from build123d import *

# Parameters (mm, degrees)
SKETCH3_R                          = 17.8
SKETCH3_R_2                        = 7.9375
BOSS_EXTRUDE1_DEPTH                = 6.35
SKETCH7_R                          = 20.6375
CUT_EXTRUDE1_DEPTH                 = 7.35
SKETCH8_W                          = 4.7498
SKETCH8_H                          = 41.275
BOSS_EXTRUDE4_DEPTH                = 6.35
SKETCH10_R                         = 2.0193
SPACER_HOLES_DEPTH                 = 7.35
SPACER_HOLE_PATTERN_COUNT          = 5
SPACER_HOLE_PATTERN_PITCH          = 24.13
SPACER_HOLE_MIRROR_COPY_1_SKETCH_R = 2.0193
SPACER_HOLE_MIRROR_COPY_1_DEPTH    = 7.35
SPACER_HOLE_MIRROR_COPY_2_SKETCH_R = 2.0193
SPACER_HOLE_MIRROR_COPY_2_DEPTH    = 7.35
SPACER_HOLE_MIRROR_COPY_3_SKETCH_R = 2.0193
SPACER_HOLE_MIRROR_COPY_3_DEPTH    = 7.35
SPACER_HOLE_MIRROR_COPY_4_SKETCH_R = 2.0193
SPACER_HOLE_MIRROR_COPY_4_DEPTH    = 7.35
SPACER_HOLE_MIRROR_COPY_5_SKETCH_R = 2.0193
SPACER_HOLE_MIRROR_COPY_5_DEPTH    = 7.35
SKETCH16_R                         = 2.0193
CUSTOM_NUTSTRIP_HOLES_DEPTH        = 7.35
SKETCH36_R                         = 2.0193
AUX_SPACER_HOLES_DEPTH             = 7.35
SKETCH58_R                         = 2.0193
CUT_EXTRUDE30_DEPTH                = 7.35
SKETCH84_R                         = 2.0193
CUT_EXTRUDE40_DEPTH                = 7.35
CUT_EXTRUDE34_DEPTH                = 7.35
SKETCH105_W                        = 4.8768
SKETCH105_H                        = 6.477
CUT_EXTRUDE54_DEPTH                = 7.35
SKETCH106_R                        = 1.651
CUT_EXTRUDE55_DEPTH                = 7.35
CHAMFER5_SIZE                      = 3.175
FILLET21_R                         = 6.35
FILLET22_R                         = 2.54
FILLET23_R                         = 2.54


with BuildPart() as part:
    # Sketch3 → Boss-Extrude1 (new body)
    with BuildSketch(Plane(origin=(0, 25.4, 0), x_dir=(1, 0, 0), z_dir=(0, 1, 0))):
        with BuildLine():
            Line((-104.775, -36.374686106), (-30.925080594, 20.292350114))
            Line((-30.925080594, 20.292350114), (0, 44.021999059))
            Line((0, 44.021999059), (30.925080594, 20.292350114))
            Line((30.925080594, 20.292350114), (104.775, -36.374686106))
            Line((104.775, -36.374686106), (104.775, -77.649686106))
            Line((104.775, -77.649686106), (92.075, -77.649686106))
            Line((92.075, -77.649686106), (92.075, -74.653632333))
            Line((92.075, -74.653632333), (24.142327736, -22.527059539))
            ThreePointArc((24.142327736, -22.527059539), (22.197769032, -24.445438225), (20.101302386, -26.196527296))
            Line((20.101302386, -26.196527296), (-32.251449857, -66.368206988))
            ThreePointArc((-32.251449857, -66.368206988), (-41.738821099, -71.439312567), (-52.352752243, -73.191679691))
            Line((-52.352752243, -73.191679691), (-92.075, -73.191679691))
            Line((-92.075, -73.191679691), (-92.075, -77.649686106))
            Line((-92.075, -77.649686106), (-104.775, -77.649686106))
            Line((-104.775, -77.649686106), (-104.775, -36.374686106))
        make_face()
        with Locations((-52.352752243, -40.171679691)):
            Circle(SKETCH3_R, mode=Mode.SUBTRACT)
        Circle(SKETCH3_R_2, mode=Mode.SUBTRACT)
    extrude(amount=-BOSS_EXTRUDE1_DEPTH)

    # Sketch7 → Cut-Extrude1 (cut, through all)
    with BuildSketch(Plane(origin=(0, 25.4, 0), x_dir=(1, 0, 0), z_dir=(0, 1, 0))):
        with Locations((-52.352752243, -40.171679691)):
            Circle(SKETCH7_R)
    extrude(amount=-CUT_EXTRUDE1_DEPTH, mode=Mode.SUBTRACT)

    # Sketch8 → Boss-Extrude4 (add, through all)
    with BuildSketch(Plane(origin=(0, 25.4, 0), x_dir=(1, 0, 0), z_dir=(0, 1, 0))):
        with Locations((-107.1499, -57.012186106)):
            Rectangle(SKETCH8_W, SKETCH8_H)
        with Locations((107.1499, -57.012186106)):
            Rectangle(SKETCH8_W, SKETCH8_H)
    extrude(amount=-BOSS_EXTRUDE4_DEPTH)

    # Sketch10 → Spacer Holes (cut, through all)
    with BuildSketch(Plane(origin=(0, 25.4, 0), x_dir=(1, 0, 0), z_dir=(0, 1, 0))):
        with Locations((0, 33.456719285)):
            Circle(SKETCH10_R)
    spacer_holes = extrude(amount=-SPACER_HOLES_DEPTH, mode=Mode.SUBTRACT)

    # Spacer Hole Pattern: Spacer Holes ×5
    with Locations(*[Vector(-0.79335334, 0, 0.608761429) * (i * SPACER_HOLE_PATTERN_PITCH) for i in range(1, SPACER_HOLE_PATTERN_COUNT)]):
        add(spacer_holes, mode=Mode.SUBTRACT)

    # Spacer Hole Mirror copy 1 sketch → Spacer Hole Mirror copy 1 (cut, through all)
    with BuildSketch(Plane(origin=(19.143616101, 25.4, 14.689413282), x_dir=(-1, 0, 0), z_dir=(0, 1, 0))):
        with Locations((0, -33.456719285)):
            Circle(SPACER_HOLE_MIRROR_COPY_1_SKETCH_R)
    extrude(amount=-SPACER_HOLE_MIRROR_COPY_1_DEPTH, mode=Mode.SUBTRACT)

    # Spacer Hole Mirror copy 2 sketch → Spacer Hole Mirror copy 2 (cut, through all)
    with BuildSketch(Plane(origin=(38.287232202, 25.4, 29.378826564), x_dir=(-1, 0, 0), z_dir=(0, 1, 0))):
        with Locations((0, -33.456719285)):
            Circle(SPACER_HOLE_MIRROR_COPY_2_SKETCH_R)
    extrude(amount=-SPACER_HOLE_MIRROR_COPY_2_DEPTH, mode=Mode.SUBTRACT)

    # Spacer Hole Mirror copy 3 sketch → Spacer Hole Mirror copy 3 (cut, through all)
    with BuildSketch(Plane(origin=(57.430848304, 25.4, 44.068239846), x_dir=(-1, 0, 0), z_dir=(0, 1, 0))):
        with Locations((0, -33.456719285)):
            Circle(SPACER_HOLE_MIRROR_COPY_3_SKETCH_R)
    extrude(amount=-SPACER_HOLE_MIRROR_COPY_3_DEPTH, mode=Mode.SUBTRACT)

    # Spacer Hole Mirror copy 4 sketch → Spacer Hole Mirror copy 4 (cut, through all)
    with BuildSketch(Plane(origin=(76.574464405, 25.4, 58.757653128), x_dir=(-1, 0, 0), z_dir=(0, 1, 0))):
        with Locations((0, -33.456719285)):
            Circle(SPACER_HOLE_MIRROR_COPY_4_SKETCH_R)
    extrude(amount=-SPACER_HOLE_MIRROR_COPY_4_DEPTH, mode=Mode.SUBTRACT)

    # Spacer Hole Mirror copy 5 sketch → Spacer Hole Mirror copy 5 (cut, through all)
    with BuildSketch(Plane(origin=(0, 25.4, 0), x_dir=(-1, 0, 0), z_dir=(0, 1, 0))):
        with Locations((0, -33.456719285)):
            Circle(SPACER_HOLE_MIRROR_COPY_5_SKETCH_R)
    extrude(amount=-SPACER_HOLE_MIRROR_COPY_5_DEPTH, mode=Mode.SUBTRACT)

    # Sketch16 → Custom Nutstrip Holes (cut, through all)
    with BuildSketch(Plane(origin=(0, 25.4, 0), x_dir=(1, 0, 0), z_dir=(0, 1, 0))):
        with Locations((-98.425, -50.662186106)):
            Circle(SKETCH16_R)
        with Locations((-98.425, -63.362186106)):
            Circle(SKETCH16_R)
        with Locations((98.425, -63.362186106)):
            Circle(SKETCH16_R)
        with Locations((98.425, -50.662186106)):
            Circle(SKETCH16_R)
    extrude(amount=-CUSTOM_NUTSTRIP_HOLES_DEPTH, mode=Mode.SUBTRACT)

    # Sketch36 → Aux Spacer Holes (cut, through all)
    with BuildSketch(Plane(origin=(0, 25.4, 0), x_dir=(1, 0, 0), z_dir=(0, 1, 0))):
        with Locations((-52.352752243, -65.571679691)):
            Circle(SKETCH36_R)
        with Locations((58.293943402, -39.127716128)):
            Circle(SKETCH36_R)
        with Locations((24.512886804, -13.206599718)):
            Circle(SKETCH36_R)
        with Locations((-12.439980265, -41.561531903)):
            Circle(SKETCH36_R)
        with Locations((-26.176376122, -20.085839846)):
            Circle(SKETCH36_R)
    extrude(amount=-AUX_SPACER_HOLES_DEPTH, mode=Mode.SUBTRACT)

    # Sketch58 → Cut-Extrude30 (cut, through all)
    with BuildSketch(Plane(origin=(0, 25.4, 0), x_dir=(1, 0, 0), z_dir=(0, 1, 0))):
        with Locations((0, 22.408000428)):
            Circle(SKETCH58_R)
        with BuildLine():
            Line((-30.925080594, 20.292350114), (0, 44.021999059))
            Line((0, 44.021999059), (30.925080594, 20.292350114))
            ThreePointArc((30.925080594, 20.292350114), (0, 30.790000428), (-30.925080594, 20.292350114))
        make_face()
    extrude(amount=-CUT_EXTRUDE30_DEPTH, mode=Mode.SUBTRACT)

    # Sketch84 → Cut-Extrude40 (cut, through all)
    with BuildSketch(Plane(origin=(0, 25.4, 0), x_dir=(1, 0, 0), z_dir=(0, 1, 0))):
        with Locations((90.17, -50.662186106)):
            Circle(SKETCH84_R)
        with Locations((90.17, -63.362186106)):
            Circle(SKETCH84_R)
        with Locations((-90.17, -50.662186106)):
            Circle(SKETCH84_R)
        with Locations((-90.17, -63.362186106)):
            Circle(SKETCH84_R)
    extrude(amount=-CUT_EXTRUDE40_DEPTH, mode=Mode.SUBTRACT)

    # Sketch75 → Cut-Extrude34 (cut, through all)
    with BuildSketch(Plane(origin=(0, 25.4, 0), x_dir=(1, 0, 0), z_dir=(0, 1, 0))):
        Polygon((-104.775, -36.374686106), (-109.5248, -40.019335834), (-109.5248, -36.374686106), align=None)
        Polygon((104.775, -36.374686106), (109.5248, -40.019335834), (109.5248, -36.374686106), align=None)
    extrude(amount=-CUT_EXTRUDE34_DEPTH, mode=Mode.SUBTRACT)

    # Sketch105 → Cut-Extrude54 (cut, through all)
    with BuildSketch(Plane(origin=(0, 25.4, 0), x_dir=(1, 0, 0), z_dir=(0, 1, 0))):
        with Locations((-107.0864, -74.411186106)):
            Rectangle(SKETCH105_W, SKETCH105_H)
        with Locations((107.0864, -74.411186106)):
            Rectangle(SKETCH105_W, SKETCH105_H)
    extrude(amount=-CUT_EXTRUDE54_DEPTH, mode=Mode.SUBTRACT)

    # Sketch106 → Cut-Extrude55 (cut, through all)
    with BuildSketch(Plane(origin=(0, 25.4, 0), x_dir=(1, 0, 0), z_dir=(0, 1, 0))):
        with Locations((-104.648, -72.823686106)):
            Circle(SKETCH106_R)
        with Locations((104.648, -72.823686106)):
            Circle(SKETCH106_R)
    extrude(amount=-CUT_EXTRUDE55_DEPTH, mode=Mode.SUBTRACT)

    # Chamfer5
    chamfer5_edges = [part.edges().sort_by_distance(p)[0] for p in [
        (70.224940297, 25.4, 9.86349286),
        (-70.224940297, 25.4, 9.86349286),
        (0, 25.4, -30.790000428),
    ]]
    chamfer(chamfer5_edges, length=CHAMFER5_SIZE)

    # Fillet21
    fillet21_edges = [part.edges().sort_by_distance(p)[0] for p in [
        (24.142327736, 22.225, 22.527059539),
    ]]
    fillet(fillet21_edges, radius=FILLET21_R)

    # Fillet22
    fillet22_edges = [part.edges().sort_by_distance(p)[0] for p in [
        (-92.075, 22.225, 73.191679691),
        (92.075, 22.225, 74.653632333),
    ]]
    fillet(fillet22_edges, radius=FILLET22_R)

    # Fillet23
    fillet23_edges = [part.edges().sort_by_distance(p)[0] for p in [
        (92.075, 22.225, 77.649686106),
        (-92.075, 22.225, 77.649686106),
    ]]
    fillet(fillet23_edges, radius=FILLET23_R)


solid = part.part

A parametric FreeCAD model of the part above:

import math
import FreeCAD as App
import Part
import Sketcher

V = App.Vector
Q = App.Units.Quantity


def edges_at(feature, points):
    """Names of the edges that pass closest to the given points."""
    edges = feature.Shape.Edges
    near = lambda p: min(range(len(edges)), key=lambda i: edges[i].distToShape(Part.Vertex(*p))[0])
    return sorted({f"Edge{near(p) + 1}" for p in points})

doc = App.newDocument("Part")
body = doc.addObject("PartDesign::Body", "Body")

sketch1 = body.newObject("Sketcher::SketchObject", "Sketch")
sketch1.AttachmentSupport = (doc.getObject("XZ_Plane"), [""])
sketch1.MapMode = "FlatFace"
sketch1.AttachmentOffset = App.Placement(V(0, 0, -1 * 25.4), App.Rotation())
sketch1.addGeometry([
    Part.LineSegment(V(-30.925081, -20.29235, 0), V(-104.775, 36.374686, 0)),
    Part.LineSegment(V(-104.775, 36.374686, 0), V(-104.775, 77.649686, 0)),
    Part.LineSegment(V(-104.775, 77.649686, 0), V(-92.075, 77.649686, 0)),
    Part.LineSegment(V(-92.075, 77.649686, 0), V(-92.075, 73.19168, 0)),
    Part.LineSegment(V(-92.075, 73.19168, 0), V(-52.352752, 73.19168, 0)),
    Part.ArcOfCircle(Part.Circle(V(-52.352752, 40.17168, 0), V(0, 0, 1), 33.02), math.radians(52.5), math.radians(90)),
    Part.LineSegment(V(-32.25145, 66.368207, 0), V(20.101302, 26.196527, 0)),
    Part.ArcOfCircle(Part.Circle(V(0, 0, 0), V(0, 0, 1), 33.02), math.radians(43.017734), math.radians(52.5)),
    Part.LineSegment(V(24.142328, 22.52706, 0), V(92.075, 74.653632, 0)),
    Part.LineSegment(V(92.075, 74.653632, 0), V(92.075, 77.649686, 0)),
    Part.LineSegment(V(92.075, 77.649686, 0), V(104.775, 77.649686, 0)),
    Part.LineSegment(V(104.775, 77.649686, 0), V(104.775, 36.374686, 0)),
    Part.LineSegment(V(104.775, 36.374686, 0), V(30.925081, -20.29235, 0)),
    Part.LineSegment(V(30.925081, -20.29235, 0), V(0, -44.021999, 0)),
    Part.LineSegment(V(0, -44.021999, 0), V(-30.925081, -20.29235, 0)),
    Part.Circle(V(-52.352752, 40.17168, 0), V(0, 0, 1), 17.8),
    Part.Circle(V(0, 0, 0), V(0, 0, 1), 7.9375),
], False)
sketch1.addConstraint([
    Sketcher.Constraint("Coincident", 0, 2, 1, 1),
    Sketcher.Constraint("Coincident", 1, 2, 2, 1),
    Sketcher.Constraint("Coincident", 2, 2, 3, 1),
    Sketcher.Constraint("Coincident", 3, 2, 4, 1),
    Sketcher.Constraint("Tangent", 4, 2, 5, 2),
    Sketcher.Constraint("Tangent", 5, 1, 6, 1),
    Sketcher.Constraint("Tangent", 6, 2, 7, 2),
    Sketcher.Constraint("Coincident", 7, 1, 8, 1),
    Sketcher.Constraint("Coincident", 8, 2, 9, 1),
    Sketcher.Constraint("Coincident", 9, 2, 10, 1),
    Sketcher.Constraint("Coincident", 10, 2, 11, 1),
    Sketcher.Constraint("Coincident", 11, 2, 12, 1),
    Sketcher.Constraint("Coincident", 12, 2, 13, 1),
    Sketcher.Constraint("Coincident", 13, 2, 14, 1),
    Sketcher.Constraint("Coincident", 14, 2, 0, 1),
    Sketcher.Constraint("Vertical", 1),
    Sketcher.Constraint("Horizontal", 2),
    Sketcher.Constraint("Vertical", 3),
    Sketcher.Constraint("Horizontal", 4),
    Sketcher.Constraint("Vertical", 9),
    Sketcher.Constraint("Horizontal", 10),
    Sketcher.Constraint("Vertical", 11),
    Sketcher.Constraint("Coincident", 7, 3, -1, 1),
    Sketcher.Constraint("Coincident", 16, 3, -1, 1),
    Sketcher.Constraint("Coincident", 15, 3, 5, 3),
    Sketcher.Constraint("Equal", 5, 7),
    Sketcher.Constraint("Symmetric", 2, 2, 9, 2, -2),
    Sketcher.Constraint("Symmetric", 0, 2, 11, 2, -2),
    Sketcher.Constraint("Symmetric", 12, 2, 14, 2, -2),
    Sketcher.Constraint("PointOnObject", 13, 2, -2),
    Sketcher.Constraint("Parallel", 0, 6),
    Sketcher.Constraint("Parallel", 8, 12),
    Sketcher.Constraint("Parallel", 12, 13),
    Sketcher.Constraint("Radius", 5, Q("1.3 in")),
    Sketcher.Constraint("Diameter", 16, Q("0.625 in")),
    Sketcher.Constraint("DistanceX", 2, 1, 2, 2, Q("0.5 in")),
    Sketcher.Constraint("Angle", 0, Q("142.5 deg")),
    Sketcher.Constraint("Diameter", 15, Q("35.6 mm")),
    Sketcher.Constraint("DistanceY", 1, 1, 1, 2, Q("1.625 in")),
    Sketcher.Constraint("Distance", 6, Q("2.598 in")),
    Sketcher.Constraint("DistanceX", 0, 2, -1, 1, Q("4.125 in")),
    Sketcher.Constraint("DistanceY", 13, 2, -1, 1, Q("44.021999 mm")),
    Sketcher.Constraint("Distance", 8, Q("85.627259 mm")),
    Sketcher.Constraint("Distance", 13, Q("38.980211 mm")),
])
pad1 = body.newObject("PartDesign::Pad", "Pad")
pad1.Profile = sketch1
pad1.Length = Q("0.25 in")

sketch2 = body.newObject("Sketcher::SketchObject", "Sketch001")
sketch2.AttachmentSupport = (doc.getObject("XZ_Plane"), [""])
sketch2.MapMode = "FlatFace"
sketch2.AttachmentOffset = App.Placement(V(0, 0, -1 * 25.4), App.Rotation())
sketch2.addGeometry(Part.Circle(V(-52.352752, 40.17168, 0), V(0, 0, 1), 20.6375), False)
sketch2.addConstraint([
    Sketcher.Constraint("Diameter", 0, Q("1.625 in")),
    Sketcher.Constraint("DistanceY", -1, 1, 0, 3, Q("40.17168 mm")),
    Sketcher.Constraint("DistanceX", 0, 3, -1, 1, Q("52.352752 mm")),
])
pocket1 = body.newObject("PartDesign::Pocket", "Pocket")
pocket1.Profile = sketch2
pocket1.Type = "ThroughAll"
pocket1.Reversed = True

sketch3 = body.newObject("Sketcher::SketchObject", "Sketch002")
sketch3.AttachmentSupport = (doc.getObject("XZ_Plane"), [""])
sketch3.MapMode = "FlatFace"
sketch3.AttachmentOffset = App.Placement(V(0, 0, -1 * 25.4), App.Rotation())
sketch3.addGeometry([
    Part.LineSegment(V(-109.5248, 36.374686, 0), V(-109.5248, 77.649686, 0)),
    Part.LineSegment(V(-109.5248, 77.649686, 0), V(-104.775, 77.649686, 0)),
    Part.LineSegment(V(-104.775, 77.649686, 0), V(-104.775, 36.374686, 0)),
    Part.LineSegment(V(-104.775, 36.374686, 0), V(-109.5248, 36.374686, 0)),
    Part.LineSegment(V(104.775, 36.374686, 0), V(104.775, 77.649686, 0)),
    Part.LineSegment(V(104.775, 77.649686, 0), V(109.5248, 77.649686, 0)),
    Part.LineSegment(V(109.5248, 77.649686, 0), V(109.5248, 36.374686, 0)),
    Part.LineSegment(V(109.5248, 36.374686, 0), V(104.775, 36.374686, 0)),
], False)
sketch3.addConstraint([
    Sketcher.Constraint("Coincident", 0, 2, 1, 1),
    Sketcher.Constraint("Coincident", 1, 2, 2, 1),
    Sketcher.Constraint("Coincident", 2, 2, 3, 1),
    Sketcher.Constraint("Coincident", 3, 2, 0, 1),
    Sketcher.Constraint("Coincident", 4, 2, 5, 1),
    Sketcher.Constraint("Coincident", 5, 2, 6, 1),
    Sketcher.Constraint("Coincident", 6, 2, 7, 1),
    Sketcher.Constraint("Coincident", 7, 2, 4, 1),
    Sketcher.Constraint("Vertical", 0),
    Sketcher.Constraint("Horizontal", 1),
    Sketcher.Constraint("Vertical", 2),
    Sketcher.Constraint("Horizontal", 3),
    Sketcher.Constraint("Vertical", 4),
    Sketcher.Constraint("Horizontal", 5),
    Sketcher.Constraint("Vertical", 6),
    Sketcher.Constraint("Horizontal", 7),
    Sketcher.Constraint("Symmetric", 1, 2, 4, 2, -2),
    Sketcher.Constraint("Symmetric", 3, 2, 6, 2, -2),
    Sketcher.Constraint("DistanceX", 1, 1, 1, 2, Q("0.187 in")),
    Sketcher.Constraint("DistanceY", 0, 1, 0, 2, Q("1.625 in")),
    Sketcher.Constraint("DistanceX", 1, 2, 4, 2, Q("8.25 in")),
    Sketcher.Constraint("DistanceY", -1, 1, 0, 2, Q("77.649686 mm")),
])
pad2 = body.newObject("PartDesign::Pad", "Pad001")
pad2.Profile = sketch3
pad2.Length = Q("0.25 in")

sketch4 = body.newObject("Sketcher::SketchObject", "Sketch003")
sketch4.AttachmentSupport = (doc.getObject("XZ_Plane"), [""])
sketch4.MapMode = "FlatFace"
sketch4.AttachmentOffset = App.Placement(V(0, 0, -1 * 25.4), App.Rotation())
sketch4.addGeometry(Part.Circle(V(0, -33.456719, 0), V(0, 0, 1), 2.0193), False)
sketch4.addConstraint([
    Sketcher.Constraint("PointOnObject", 0, 3, -2),
    Sketcher.Constraint("Diameter", 0, Q("0.159 in")),
    Sketcher.Constraint("DistanceY", 0, 3, -1, 1, Q("33.456719 mm")),
])
pocket2 = body.newObject("PartDesign::Pocket", "Pocket001")
pocket2.Profile = sketch4
pocket2.Type = "ThroughAll"
pocket2.Reversed = True
doc.recompute()

datumline = body.newObject("PartDesign::Line", "DatumLine")
datumline.Placement = App.Placement(V(0, 0, 0), App.Rotation(V(0, 0, 1), V(-0.79335334, 0, 0.608761429)))
linearpattern = body.newObject("PartDesign::LinearPattern", "LinearPattern")
linearpattern.Originals = [pocket2]
linearpattern.Direction = (datumline, [""])
linearpattern.Mode = "offset"
linearpattern.Offset = Q("0.95 in")
linearpattern.Occurrences = 5
body.Tip = linearpattern

sketch5 = body.newObject("Sketcher::SketchObject", "Sketch004")
sketch5.AttachmentSupport = (doc.getObject("XZ_Plane"), [""])
sketch5.MapMode = "FlatFace"
sketch5.AttachmentOffset = App.Placement(V(0, 0, -1 * 25.4), App.Rotation())
sketch5.addGeometry(Part.Circle(V(19.143616, -18.767306, 0), V(0, 0, 1), 2.0193), False)
sketch5.addConstraint([
    Sketcher.Constraint("Diameter", 0, Q("0.159 in")),
    Sketcher.Constraint("DistanceX", -1, 1, 0, 3, Q("19.143616 mm")),
    Sketcher.Constraint("DistanceY", 0, 3, -1, 1, Q("18.767306 mm")),
])
pocket3 = body.newObject("PartDesign::Pocket", "Pocket002")
pocket3.Profile = sketch5
pocket3.Type = "ThroughAll"
pocket3.Reversed = True

sketch6 = body.newObject("Sketcher::SketchObject", "Sketch005")
sketch6.AttachmentSupport = (doc.getObject("XZ_Plane"), [""])
sketch6.MapMode = "FlatFace"
sketch6.AttachmentOffset = App.Placement(V(0, 0, -1 * 25.4), App.Rotation())
sketch6.addGeometry(Part.Circle(V(38.287232, -4.077893, 0), V(0, 0, 1), 2.0193), False)
sketch6.addConstraint([
    Sketcher.Constraint("Diameter", 0, Q("0.159 in")),
    Sketcher.Constraint("DistanceX", -1, 1, 0, 3, Q("38.287232 mm")),
    Sketcher.Constraint("DistanceY", 0, 3, -1, 1, Q("4.077893 mm")),
])
pocket4 = body.newObject("PartDesign::Pocket", "Pocket003")
pocket4.Profile = sketch6
pocket4.Type = "ThroughAll"
pocket4.Reversed = True

sketch7 = body.newObject("Sketcher::SketchObject", "Sketch006")
sketch7.AttachmentSupport = (doc.getObject("XZ_Plane"), [""])
sketch7.MapMode = "FlatFace"
sketch7.AttachmentOffset = App.Placement(V(0, 0, -1 * 25.4), App.Rotation())
sketch7.addGeometry(Part.Circle(V(57.430848, 10.611521, 0), V(0, 0, 1), 2.0193), False)
sketch7.addConstraint([
    Sketcher.Constraint("Diameter", 0, Q("0.159 in")),
    Sketcher.Constraint("DistanceX", -1, 1, 0, 3, Q("57.430848 mm")),
    Sketcher.Constraint("DistanceY", -1, 1, 0, 3, Q("10.611521 mm")),
])
pocket5 = body.newObject("PartDesign::Pocket", "Pocket004")
pocket5.Profile = sketch7
pocket5.Type = "ThroughAll"
pocket5.Reversed = True

sketch8 = body.newObject("Sketcher::SketchObject", "Sketch007")
sketch8.AttachmentSupport = (doc.getObject("XZ_Plane"), [""])
sketch8.MapMode = "FlatFace"
sketch8.AttachmentOffset = App.Placement(V(0, 0, -1 * 25.4), App.Rotation())
sketch8.addGeometry(Part.Circle(V(76.574464, 25.300934, 0), V(0, 0, 1), 2.0193), False)
sketch8.addConstraint([
    Sketcher.Constraint("Diameter", 0, Q("0.159 in")),
    Sketcher.Constraint("DistanceX", -1, 1, 0, 3, Q("76.574464 mm")),
    Sketcher.Constraint("DistanceY", -1, 1, 0, 3, Q("25.300934 mm")),
])
pocket6 = body.newObject("PartDesign::Pocket", "Pocket005")
pocket6.Profile = sketch8
pocket6.Type = "ThroughAll"
pocket6.Reversed = True

sketch9 = body.newObject("Sketcher::SketchObject", "Sketch008")
sketch9.AttachmentSupport = (doc.getObject("XZ_Plane"), [""])
sketch9.MapMode = "FlatFace"
sketch9.AttachmentOffset = App.Placement(V(0, 0, -1 * 25.4), App.Rotation())
sketch9.addGeometry(Part.Circle(V(0, -33.456719, 0), V(0, 0, 1), 2.0193), False)
sketch9.addConstraint([
    Sketcher.Constraint("PointOnObject", 0, 3, -2),
    Sketcher.Constraint("Diameter", 0, Q("0.159 in")),
    Sketcher.Constraint("DistanceY", 0, 3, -1, 1, Q("33.456719 mm")),
])
pocket7 = body.newObject("PartDesign::Pocket", "Pocket006")
pocket7.Profile = sketch9
pocket7.Type = "ThroughAll"
pocket7.Reversed = True

sketch10 = body.newObject("Sketcher::SketchObject", "Sketch009")
sketch10.AttachmentSupport = (doc.getObject("XZ_Plane"), [""])
sketch10.MapMode = "FlatFace"
sketch10.AttachmentOffset = App.Placement(V(0, 0, -1 * 25.4), App.Rotation())
sketch10.addGeometry([
    Part.Circle(V(-98.425, 50.662186, 0), V(0, 0, 1), 2.0193),
    Part.Circle(V(-98.425, 63.362186, 0), V(0, 0, 1), 2.0193),
    Part.Circle(V(98.425, 63.362186, 0), V(0, 0, 1), 2.0193),
    Part.Circle(V(98.425, 50.662186, 0), V(0, 0, 1), 2.0193),
], False)
sketch10.addConstraint([
    Sketcher.Constraint("Equal", 0, 1),
    Sketcher.Constraint("Equal", 1, 2),
    Sketcher.Constraint("Equal", 2, 3),
    Sketcher.Constraint("Symmetric", 1, 3, 2, 3, -2),
    Sketcher.Constraint("Symmetric", 0, 3, 3, 3, -2),
    Sketcher.Constraint("Vertical", 0, 3, 1, 3),
    Sketcher.Constraint("Diameter", 0, Q("0.159 in")),
    Sketcher.Constraint("DistanceY", 0, 3, 1, 3, Q("0.5 in")),
    Sketcher.Constraint("DistanceX", 1, 3, 2, 3, Q("7.75 in")),
    Sketcher.Constraint("DistanceY", -1, 1, 0, 3, Q("50.662186 mm")),
])
pocket8 = body.newObject("PartDesign::Pocket", "Pocket007")
pocket8.Profile = sketch10
pocket8.Type = "ThroughAll"
pocket8.Reversed = True

sketch11 = body.newObject("Sketcher::SketchObject", "Sketch010")
sketch11.AttachmentSupport = (doc.getObject("XZ_Plane"), [""])
sketch11.MapMode = "FlatFace"
sketch11.AttachmentOffset = App.Placement(V(0, 0, -1 * 25.4), App.Rotation())
sketch11.addGeometry([
    Part.Circle(V(-52.352752, 65.57168, 0), V(0, 0, 1), 2.0193),
    Part.Circle(V(58.293943, 39.127716, 0), V(0, 0, 1), 2.0193),
    Part.Circle(V(24.512887, 13.2066, 0), V(0, 0, 1), 2.0193),
    Part.Circle(V(-12.43998, 41.561532, 0), V(0, 0, 1), 2.0193),
    Part.Circle(V(-26.176376, 20.08584, 0), V(0, 0, 1), 2.0193),
], False)
sketch11.addConstraint([
    Sketcher.Constraint("Equal", 0, 1),
    Sketcher.Constraint("Equal", 1, 2),
    Sketcher.Constraint("Equal", 2, 3),
    Sketcher.Constraint("Equal", 3, 4),
    Sketcher.Constraint("Diameter", 0, Q("0.159 in")),
    Sketcher.Constraint("DistanceX", 3, 3, 1, 3, Q("2.7848001 in")),
    Sketcher.Constraint("DistanceY", -1, 1, 2, 3, Q("13.2066 mm")),
    Sketcher.Constraint("DistanceY", -1, 1, 0, 3, Q("65.57168 mm")),
    Sketcher.Constraint("DistanceX", 3, 3, -1, 1, Q("12.43998 mm")),
    Sketcher.Constraint("DistanceY", -1, 1, 3, 3, Q("41.561532 mm")),
    Sketcher.Constraint("DistanceY", -1, 1, 4, 3, Q("20.08584 mm")),
    Sketcher.Constraint("DistanceX", 0, 3, 2, 3, Q("76.865639 mm")),
    Sketcher.Constraint("DistanceX", 0, 3, 3, 3, Q("39.912772 mm")),
    Sketcher.Constraint("DistanceX", 4, 3, 1, 3, Q("84.47032 mm")),
    Sketcher.Constraint("DistanceY", -1, 1, 1, 3, Q("39.127716 mm")),
])
pocket9 = body.newObject("PartDesign::Pocket", "Pocket008")
pocket9.Profile = sketch11
pocket9.Type = "ThroughAll"
pocket9.Reversed = True

sketch12 = body.newObject("Sketcher::SketchObject", "Sketch011")
sketch12.AttachmentSupport = (doc.getObject("XZ_Plane"), [""])
sketch12.MapMode = "FlatFace"
sketch12.AttachmentOffset = App.Placement(V(0, 0, -1 * 25.4), App.Rotation())
sketch12.addGeometry([
    Part.Circle(V(0, -22.408, 0), V(0, 0, 1), 2.0193),
    Part.LineSegment(V(0, -44.021999, 0), V(-30.925081, -20.29235, 0)),
    Part.ArcOfCircle(Part.Circle(V(0, 20.01, 0), V(0, 0, 1), 50.8), math.radians(-127.5), math.radians(-52.5)),
    Part.LineSegment(V(30.925081, -20.29235, 0), V(0, -44.021999, 0)),
], False)
sketch12.addConstraint([
    Sketcher.Constraint("Tangent", 1, 2, 2, 1),
    Sketcher.Constraint("Tangent", 2, 2, 3, 1),
    Sketcher.Constraint("Coincident", 3, 2, 1, 1),
    Sketcher.Constraint("Symmetric", 1, 2, 2, 2, -2),
    Sketcher.Constraint("PointOnObject", 0, 3, -2),
    Sketcher.Constraint("Radius", 2, Q("2 in")),
    Sketcher.Constraint("Diameter", 0, Q("0.159 in")),
    Sketcher.Constraint("Angle", 1, Q("142.5 deg")),
    Sketcher.Constraint("DistanceY", 0, 3, 2, 3, Q("1.67 in")),
    Sketcher.Constraint("DistanceY", 0, 3, -1, 1, Q("22.408 mm")),
])
pocket10 = body.newObject("PartDesign::Pocket", "Pocket009")
pocket10.Profile = sketch12
pocket10.Type = "ThroughAll"
pocket10.Reversed = True

sketch13 = body.newObject("Sketcher::SketchObject", "Sketch012")
sketch13.AttachmentSupport = (doc.getObject("XZ_Plane"), [""])
sketch13.MapMode = "FlatFace"
sketch13.AttachmentOffset = App.Placement(V(0, 0, -1 * 25.4), App.Rotation())
sketch13.addGeometry([
    Part.Circle(V(90.17, 50.662186, 0), V(0, 0, 1), 2.0193),
    Part.Circle(V(90.17, 63.362186, 0), V(0, 0, 1), 2.0193),
    Part.Circle(V(-90.17, 50.662186, 0), V(0, 0, 1), 2.0193),
    Part.Circle(V(-90.17, 63.362186, 0), V(0, 0, 1), 2.0193),
], False)
sketch13.addConstraint([
    Sketcher.Constraint("Equal", 0, 1),
    Sketcher.Constraint("Equal", 1, 2),
    Sketcher.Constraint("Equal", 2, 3),
    Sketcher.Constraint("Symmetric", 0, 3, 2, 3, -2),
    Sketcher.Constraint("Symmetric", 1, 3, 3, 3, -2),
    Sketcher.Constraint("Vertical", 0, 3, 1, 3),
    Sketcher.Constraint("Diameter", 0, Q("0.159 in")),
    Sketcher.Constraint("DistanceY", 0, 3, 1, 3, Q("0.5 in")),
    Sketcher.Constraint("DistanceX", 2, 3, 0, 3, Q("7.1 in")),
    Sketcher.Constraint("DistanceY", -1, 1, 0, 3, Q("50.662186 mm")),
])
pocket11 = body.newObject("PartDesign::Pocket", "Pocket010")
pocket11.Profile = sketch13
pocket11.Type = "ThroughAll"
pocket11.Reversed = True

sketch14 = body.newObject("Sketcher::SketchObject", "Sketch013")
sketch14.AttachmentSupport = (doc.getObject("XZ_Plane"), [""])
sketch14.MapMode = "FlatFace"
sketch14.AttachmentOffset = App.Placement(V(0, 0, -1 * 25.4), App.Rotation())
sketch14.addGeometry([
    Part.LineSegment(V(-109.5248, 40.019336, 0), V(-104.775, 36.374686, 0)),
    Part.LineSegment(V(-104.775, 36.374686, 0), V(-109.5248, 36.374686, 0)),
    Part.LineSegment(V(-109.5248, 36.374686, 0), V(-109.5248, 40.019336, 0)),
    Part.LineSegment(V(104.775, 36.374686, 0), V(109.5248, 40.019336, 0)),
    Part.LineSegment(V(109.5248, 40.019336, 0), V(109.5248, 36.374686, 0)),
    Part.LineSegment(V(109.5248, 36.374686, 0), V(104.775, 36.374686, 0)),
], False)
sketch14.addConstraint([
    Sketcher.Constraint("Coincident", 0, 2, 1, 1),
    Sketcher.Constraint("Coincident", 1, 2, 2, 1),
    Sketcher.Constraint("Coincident", 2, 2, 0, 1),
    Sketcher.Constraint("Coincident", 3, 2, 4, 1),
    Sketcher.Constraint("Coincident", 4, 2, 5, 1),
    Sketcher.Constraint("Coincident", 5, 2, 3, 1),
    Sketcher.Constraint("Horizontal", 1),
    Sketcher.Constraint("Vertical", 2),
    Sketcher.Constraint("Vertical", 4),
    Sketcher.Constraint("Horizontal", 5),
    Sketcher.Constraint("Symmetric", 2, 2, 3, 2, -2),
    Sketcher.Constraint("Symmetric", 0, 2, 5, 2, -2),
    Sketcher.Constraint("Angle", 0, Q("-37.5 deg")),
    Sketcher.Constraint("DistanceX", 1, 2, 1, 1, Q("0.187 in")),
    Sketcher.Constraint("DistanceX", 0, 2, 5, 2, Q("8.25 in")),
    Sketcher.Constraint("DistanceY", -1, 1, 0, 2, Q("36.374686 mm")),
])
pocket12 = body.newObject("PartDesign::Pocket", "Pocket011")
pocket12.Profile = sketch14
pocket12.Type = "ThroughAll"
pocket12.Reversed = True

sketch15 = body.newObject("Sketcher::SketchObject", "Sketch014")
sketch15.AttachmentSupport = (doc.getObject("XZ_Plane"), [""])
sketch15.MapMode = "FlatFace"
sketch15.AttachmentOffset = App.Placement(V(0, 0, -1 * 25.4), App.Rotation())
sketch15.addGeometry([
    Part.LineSegment(V(-109.5248, 71.172686, 0), V(-109.5248, 77.649686, 0)),
    Part.LineSegment(V(-109.5248, 77.649686, 0), V(-104.648, 77.649686, 0)),
    Part.LineSegment(V(-104.648, 77.649686, 0), V(-104.648, 71.172686, 0)),
    Part.LineSegment(V(-104.648, 71.172686, 0), V(-109.5248, 71.172686, 0)),
    Part.LineSegment(V(104.648, 71.172686, 0), V(104.648, 77.649686, 0)),
    Part.LineSegment(V(104.648, 77.649686, 0), V(109.5248, 77.649686, 0)),
    Part.LineSegment(V(109.5248, 77.649686, 0), V(109.5248, 71.172686, 0)),
    Part.LineSegment(V(109.5248, 71.172686, 0), V(104.648, 71.172686, 0)),
], False)
sketch15.addConstraint([
    Sketcher.Constraint("Coincident", 0, 2, 1, 1),
    Sketcher.Constraint("Coincident", 1, 2, 2, 1),
    Sketcher.Constraint("Coincident", 2, 2, 3, 1),
    Sketcher.Constraint("Coincident", 3, 2, 0, 1),
    Sketcher.Constraint("Coincident", 4, 2, 5, 1),
    Sketcher.Constraint("Coincident", 5, 2, 6, 1),
    Sketcher.Constraint("Coincident", 6, 2, 7, 1),
    Sketcher.Constraint("Coincident", 7, 2, 4, 1),
    Sketcher.Constraint("Vertical", 0),
    Sketcher.Constraint("Horizontal", 1),
    Sketcher.Constraint("Vertical", 2),
    Sketcher.Constraint("Horizontal", 3),
    Sketcher.Constraint("Vertical", 4),
    Sketcher.Constraint("Horizontal", 5),
    Sketcher.Constraint("Vertical", 6),
    Sketcher.Constraint("Horizontal", 7),
    Sketcher.Constraint("Symmetric", 1, 2, 4, 2, -2),
    Sketcher.Constraint("Symmetric", 3, 2, 6, 2, -2),
    Sketcher.Constraint("DistanceX", 1, 1, 1, 2, Q("0.192 in")),
    Sketcher.Constraint("DistanceY", 0, 1, 0, 2, Q("0.255 in")),
    Sketcher.Constraint("DistanceX", 1, 2, -1, 1, Q("4.12 in")),
    Sketcher.Constraint("DistanceY", -1, 1, 0, 2, Q("77.649686 mm")),
])
pocket13 = body.newObject("PartDesign::Pocket", "Pocket012")
pocket13.Profile = sketch15
pocket13.Type = "ThroughAll"
pocket13.Reversed = True

sketch16 = body.newObject("Sketcher::SketchObject", "Sketch015")
sketch16.AttachmentSupport = (doc.getObject("XZ_Plane"), [""])
sketch16.MapMode = "FlatFace"
sketch16.AttachmentOffset = App.Placement(V(0, 0, -1 * 25.4), App.Rotation())
sketch16.addGeometry([
    Part.Circle(V(-104.648, 72.823686, 0), V(0, 0, 1), 1.651),
    Part.Circle(V(104.648, 72.823686, 0), V(0, 0, 1), 1.651),
], False)
sketch16.addConstraint([
    Sketcher.Constraint("Equal", 0, 1),
    Sketcher.Constraint("Symmetric", 0, 3, 1, 3, -2),
    Sketcher.Constraint("Diameter", 0, Q("0.13 in")),
    Sketcher.Constraint("DistanceX", 0, 3, -1, 1, Q("4.12 in")),
    Sketcher.Constraint("DistanceY", -1, 1, 0, 3, Q("72.823686 mm")),
])
pocket14 = body.newObject("PartDesign::Pocket", "Pocket013")
pocket14.Profile = sketch16
pocket14.Type = "ThroughAll"
pocket14.Reversed = True
doc.recompute()

chamfer = body.newObject("PartDesign::Chamfer", "Chamfer")
chamfer.Base = (pocket14, edges_at(pocket14, [(67.85, 25.4, 8.041), (-67.85, 25.4, 8.041), (0, 25.4, -30.79)]))
chamfer.Size = Q("0.125 in")
doc.recompute()

fillet = body.newObject("PartDesign::Fillet", "Fillet")
fillet.Base = (chamfer, edges_at(chamfer, [(24.142, 22.225, 22.527)]))
fillet.Radius = Q("0.25 in")
doc.recompute()

fillet2 = body.newObject("PartDesign::Fillet", "Fillet001")
fillet2.Base = (fillet, edges_at(fillet, [(-92.075, 22.225, 73.192), (92.075, 22.225, 74.654)]))
fillet2.Radius = Q("0.1 in")
doc.recompute()

fillet3 = body.newObject("PartDesign::Fillet", "Fillet002")
fillet3.Base = (fillet2, edges_at(fillet2, [(92.075, 22.225, 77.65), (-92.075, 22.225, 77.65)]))
fillet3.Radius = Q("0.1 in")

doc.recompute()
